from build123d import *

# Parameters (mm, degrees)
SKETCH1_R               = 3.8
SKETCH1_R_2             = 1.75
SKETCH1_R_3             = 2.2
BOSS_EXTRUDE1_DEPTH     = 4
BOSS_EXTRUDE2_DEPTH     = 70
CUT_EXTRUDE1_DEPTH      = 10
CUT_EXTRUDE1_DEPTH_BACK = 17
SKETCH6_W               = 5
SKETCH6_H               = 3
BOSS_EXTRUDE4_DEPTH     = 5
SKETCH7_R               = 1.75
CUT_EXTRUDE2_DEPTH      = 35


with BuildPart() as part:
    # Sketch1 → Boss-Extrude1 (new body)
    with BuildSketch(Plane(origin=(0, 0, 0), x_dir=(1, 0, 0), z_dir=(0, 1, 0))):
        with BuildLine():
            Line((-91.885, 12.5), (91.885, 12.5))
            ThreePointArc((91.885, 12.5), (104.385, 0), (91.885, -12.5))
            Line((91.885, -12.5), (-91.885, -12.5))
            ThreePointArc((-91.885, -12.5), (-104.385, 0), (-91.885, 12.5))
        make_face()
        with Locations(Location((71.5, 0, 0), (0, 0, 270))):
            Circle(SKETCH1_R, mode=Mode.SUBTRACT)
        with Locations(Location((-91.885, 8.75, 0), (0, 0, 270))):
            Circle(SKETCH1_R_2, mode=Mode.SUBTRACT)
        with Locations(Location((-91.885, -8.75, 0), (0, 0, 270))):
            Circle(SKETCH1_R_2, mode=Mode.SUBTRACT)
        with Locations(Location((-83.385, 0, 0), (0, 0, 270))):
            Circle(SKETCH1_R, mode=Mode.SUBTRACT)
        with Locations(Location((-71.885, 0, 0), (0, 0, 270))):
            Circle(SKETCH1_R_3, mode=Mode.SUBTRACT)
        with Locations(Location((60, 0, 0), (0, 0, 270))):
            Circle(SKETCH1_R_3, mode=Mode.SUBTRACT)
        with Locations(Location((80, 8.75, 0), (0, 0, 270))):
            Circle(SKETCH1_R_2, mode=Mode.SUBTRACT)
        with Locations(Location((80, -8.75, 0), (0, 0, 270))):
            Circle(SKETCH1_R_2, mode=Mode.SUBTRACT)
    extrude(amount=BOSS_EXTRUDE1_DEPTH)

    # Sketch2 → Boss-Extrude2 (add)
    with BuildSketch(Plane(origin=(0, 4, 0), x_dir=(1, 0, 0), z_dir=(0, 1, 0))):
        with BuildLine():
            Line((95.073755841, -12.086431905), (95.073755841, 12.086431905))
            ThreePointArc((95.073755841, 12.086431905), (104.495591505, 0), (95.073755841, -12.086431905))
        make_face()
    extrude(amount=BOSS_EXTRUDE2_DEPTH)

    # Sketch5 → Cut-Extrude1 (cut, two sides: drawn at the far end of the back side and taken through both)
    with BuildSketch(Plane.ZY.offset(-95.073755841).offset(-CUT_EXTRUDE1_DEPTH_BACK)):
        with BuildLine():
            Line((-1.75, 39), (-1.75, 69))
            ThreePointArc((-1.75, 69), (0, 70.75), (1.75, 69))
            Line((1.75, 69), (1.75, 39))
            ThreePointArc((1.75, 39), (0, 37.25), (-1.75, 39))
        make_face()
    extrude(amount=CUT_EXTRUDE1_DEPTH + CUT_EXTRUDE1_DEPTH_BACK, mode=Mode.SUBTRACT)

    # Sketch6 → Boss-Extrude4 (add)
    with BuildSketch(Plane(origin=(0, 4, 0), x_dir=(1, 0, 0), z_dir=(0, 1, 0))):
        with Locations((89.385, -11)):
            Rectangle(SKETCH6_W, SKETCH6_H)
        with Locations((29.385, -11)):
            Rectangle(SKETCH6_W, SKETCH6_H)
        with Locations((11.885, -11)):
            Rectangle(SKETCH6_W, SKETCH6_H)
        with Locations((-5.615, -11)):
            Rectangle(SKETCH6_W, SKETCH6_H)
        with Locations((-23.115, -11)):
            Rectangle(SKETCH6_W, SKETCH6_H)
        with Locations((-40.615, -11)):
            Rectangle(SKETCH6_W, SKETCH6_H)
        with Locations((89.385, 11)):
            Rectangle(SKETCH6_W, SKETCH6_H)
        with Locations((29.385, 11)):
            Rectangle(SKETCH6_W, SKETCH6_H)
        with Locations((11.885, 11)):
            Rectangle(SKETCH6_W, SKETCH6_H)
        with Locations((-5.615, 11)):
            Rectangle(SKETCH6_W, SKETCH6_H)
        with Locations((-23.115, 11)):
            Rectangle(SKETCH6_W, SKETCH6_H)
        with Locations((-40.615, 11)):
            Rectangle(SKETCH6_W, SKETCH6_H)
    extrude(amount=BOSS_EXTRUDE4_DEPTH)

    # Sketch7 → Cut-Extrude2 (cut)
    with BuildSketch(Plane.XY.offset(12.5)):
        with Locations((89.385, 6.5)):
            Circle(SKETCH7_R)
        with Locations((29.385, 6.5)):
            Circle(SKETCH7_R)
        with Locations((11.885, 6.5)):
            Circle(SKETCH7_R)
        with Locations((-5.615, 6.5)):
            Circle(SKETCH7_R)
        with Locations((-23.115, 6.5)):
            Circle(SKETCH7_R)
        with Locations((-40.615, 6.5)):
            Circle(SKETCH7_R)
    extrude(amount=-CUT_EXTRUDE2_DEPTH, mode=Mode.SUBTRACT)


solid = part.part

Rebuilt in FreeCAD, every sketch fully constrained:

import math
import FreeCAD as App
import Part
import Sketcher
Q = App.Units.Quantity


def add_polygon(sketch, points):
    """Adds a closed chain of lines whose ends are joined by coincident constraints."""
    first, n = sketch.GeometryCount, len(points)
    for a, b in zip(points, points[1:] + points[:1]):
        sketch.addGeometry(Part.LineSegment(App.Vector(*a, 0), App.Vector(*b, 0)), False)
    for i in range(n):
        sketch.addConstraint(Sketcher.Constraint("Coincident", first + i, 2, first + (i + 1) % n, 1))

doc = App.newDocument("Part")
body = doc.addObject("PartDesign::Body", "Body")

sketch1 = doc.addObject("Sketcher::SketchObject", "Sketch")
body.addObject(sketch1)
sketch1.AttachmentSupport = (doc.XZ_Plane, [""])
sketch1.MapMode = "FlatFace"
sketch1.addGeometry(Part.LineSegment(App.Vector(91.885, -12.5, 0), App.Vector(-91.885, -12.5, 0)), False)
sketch1.addGeometry(Part.ArcOfCircle(Part.Circle(App.Vector(-91.885, 0, 0), App.Vector(0, 0, 1), 12.5), math.radians(90), math.radians(270)), False)
sketch1.addGeometry(Part.LineSegment(App.Vector(-91.885, 12.5, 0), App.Vector(91.885, 12.5, 0)), False)
sketch1.addGeometry(Part.ArcOfCircle(Part.Circle(App.Vector(91.885, 0, 0), App.Vector(0, 0, 1), 12.5), math.radians(-90), math.radians(90)), False)
sketch1.addGeometry(Part.Circle(App.Vector(80, 8.75, 0), App.Vector(0, 0, 1), 1.75), False)
sketch1.addGeometry(Part.Circle(App.Vector(-91.885, 8.75, 0), App.Vector(0, 0, 1), 1.75), False)
sketch1.addGeometry(Part.Circle(App.Vector(71.5, 0, 0), App.Vector(0, 0, 1), 3.8), False)
sketch1.addGeometry(Part.Circle(App.Vector(60, 0, 0), App.Vector(0, 0, 1), 2.2), False)
sketch1.addGeometry(Part.Circle(App.Vector(80, -8.75, 0), App.Vector(0, 0, 1), 1.75), False)
sketch1.addGeometry(Part.Circle(App.Vector(-71.885, 0, 0), App.Vector(0, 0, 1), 2.2), False)
sketch1.addGeometry(Part.Circle(App.Vector(-83.385, 0, 0), App.Vector(0, 0, 1), 3.8), False)
sketch1.addGeometry(Part.Circle(App.Vector(-91.885, -8.75, 0), App.Vector(0, 0, 1), 1.75), False)
sketch1.addConstraint(Sketcher.Constraint("Tangent", 0, 2, 1, 2))
sketch1.addConstraint(Sketcher.Constraint("Tangent", 1, 1, 2, 1))
sketch1.addConstraint(Sketcher.Constraint("Tangent", 2, 2, 3, 2))
sketch1.addConstraint(Sketcher.Constraint("Tangent", 3, 1, 0, 1))
sketch1.addConstraint(Sketcher.Constraint("Horizontal", 0))
sketch1.addConstraint(Sketcher.Constraint("Horizontal", 2))
sketch1.addConstraint(Sketcher.Constraint("Equal", 4, 5))
sketch1.addConstraint(Sketcher.Constraint("Equal", 5, 8))
sketch1.addConstraint(Sketcher.Constraint("Equal", 7, 9))
sketch1.addConstraint(Sketcher.Constraint("Equal", 6, 10))
sketch1.addConstraint(Sketcher.Constraint("Equal", 8, 11))
sketch1.addConstraint(Sketcher.Constraint("Symmetric", 1, 3, 3, 3, -1, 1))
sketch1.addConstraint(Sketcher.Constraint("Symmetric", 4, 3, 8, 3, -1))
sketch1.addConstraint(Sketcher.Constraint("Symmetric", 5, 3, 11, 3, -1))
sketch1.addConstraint(Sketcher.Constraint("PointOnObject", 6, 3, -1))
sketch1.addConstraint(Sketcher.Constraint("PointOnObject", 7, 3, -1))
sketch1.addConstraint(Sketcher.Constraint("PointOnObject", 9, 3, -1))
sketch1.addConstraint(Sketcher.Constraint("PointOnObject", 10, 3, -1))
sketch1.addConstraint(Sketcher.Constraint("Horizontal", 4, 3, 5, 3))
sketch1.addConstraint(Sketcher.Constraint("Vertical", 1, 3, 5, 3))
sketch1.addConstraint(Sketcher.Constraint("Diameter", 4, Q("3.5 mm")))
sketch1.addConstraint(Sketcher.Constraint("Diameter", 6, Q("7.6 mm")))
sketch1.addConstraint(Sketcher.Constraint("Diameter", 7, Q("4.4 mm")))
sketch1.addConstraint(Sketcher.Constraint("Radius", 1, Q("12.5 mm")))
sketch1.addConstraint(Sketcher.Constraint("DistanceX", -1, 1, 4, 3, Q("80 mm")))
sketch1.addConstraint(Sketcher.Constraint("DistanceX", -1, 1, 7, 3, Q("60 mm")))
sketch1.addConstraint(Sketcher.Constraint("DistanceX", 1, 3, 9, 3, Q("20 mm")))
sketch1.addConstraint(Sketcher.Constraint("DistanceX", 0, 2, 0, 1, Q("183.77 mm")))
sketch1.addConstraint(Sketcher.Constraint("DistanceX", -1, 1, 6, 3, Q("71.5 mm")))
sketch1.addConstraint(Sketcher.Constraint("DistanceY", 8, 3, 4, 3, Q("17.5 mm")))
sketch1.addConstraint(Sketcher.Constraint("DistanceX", 1, 3, 10, 3, Q("8.5 mm")))
pad1 = doc.addObject("PartDesign::Pad", "Pad")
body.addObject(pad1)
pad1.Profile = sketch1
pad1.Length = 4
pad1.Reversed = True

sketch2 = doc.addObject("Sketcher::SketchObject", "Sketch001")
body.addObject(sketch2)
sketch2.AttachmentSupport = (doc.XZ_Plane, [""])
sketch2.MapMode = "FlatFace"
sketch2.AttachmentOffset = App.Placement(App.Vector(0, 0, -4), App.Rotation())
sketch2.addGeometry(Part.LineSegment(App.Vector(95.073756, -12.086432, 0), App.Vector(95.073756, 12.086432, 0)), False)
sketch2.addGeometry(Part.ArcOfCircle(Part.Circle(App.Vector(92.032371, 0, 0), App.Vector(0, 0, 1), 12.46322), math.radians(-75.875555), math.radians(75.875555)), False)
sketch2.addConstraint(Sketcher.Constraint("Coincident", 0, 1, 1, 1))
sketch2.addConstraint(Sketcher.Constraint("Coincident", 1, 2, 0, 2))
sketch2.addConstraint(Sketcher.Constraint("Vertical", 0))
sketch2.addConstraint(Sketcher.Constraint("PointOnObject", 1, 3, -1))
sketch2.addConstraint(Sketcher.Constraint("Radius", 1, Q("12.46322 mm")))
sketch2.addConstraint(Sketcher.Constraint("DistanceY", 0, 1, 0, 2, Q("24.172864 mm")))
sketch2.addConstraint(Sketcher.Constraint("DistanceX", -1, 1, 1, 3, Q("92.032371 mm")))
pad2 = doc.addObject("PartDesign::Pad", "Pad001")
body.addObject(pad2)
pad2.Profile = sketch2
pad2.Length = 70
pad2.Reversed = True

sketch3 = doc.addObject("Sketcher::SketchObject", "Sketch002")
body.addObject(sketch3)
sketch3.AttachmentSupport = (doc.YZ_Plane, [""])
sketch3.MapMode = "FlatFace"
sketch3.AttachmentOffset = App.Placement(App.Vector(0, 0, 95.073756), App.Rotation())
sketch3.addGeometry(Part.LineSegment(App.Vector(69, -1.75, 0), App.Vector(39, -1.75, 0)), False)
sketch3.addGeometry(Part.ArcOfCircle(Part.Circle(App.Vector(39, 0, 0), App.Vector(0, 0, 1), 1.75), math.radians(90), math.radians(270)), False)
sketch3.addGeometry(Part.LineSegment(App.Vector(39, 1.75, 0), App.Vector(69, 1.75, 0)), False)
sketch3.addGeometry(Part.ArcOfCircle(Part.Circle(App.Vector(69, 0, 0), App.Vector(0, 0, 1), 1.75), math.radians(-90), math.radians(90)), False)
sketch3.addConstraint(Sketcher.Constraint("Tangent", 0, 2, 1, 2))
sketch3.addConstraint(Sketcher.Constraint("Tangent", 1, 1, 2, 1))
sketch3.addConstraint(Sketcher.Constraint("Tangent", 2, 2, 3, 2))
sketch3.addConstraint(Sketcher.Constraint("Tangent", 3, 1, 0, 1))
sketch3.addConstraint(Sketcher.Constraint("Horizontal", 0))
sketch3.addConstraint(Sketcher.Constraint("Horizontal", 2))
sketch3.addConstraint(Sketcher.Constraint("PointOnObject", 1, 3, -1))
sketch3.addConstraint(Sketcher.Constraint("DistanceX", 0, 2, 0, 1, Q("30 mm")))
sketch3.addConstraint(Sketcher.Constraint("Radius", 1, Q("1.75 mm")))
sketch3.addConstraint(Sketcher.Constraint("DistanceX", -1, 1, 1, 3, Q("39 mm")))
pocket1 = doc.addObject("PartDesign::Pocket", "Pocket")
body.addObject(pocket1)
pocket1.Profile = sketch3
pocket1.Type = "ThroughAll"
pocket1.Midplane = True

sketch4 = doc.addObject("Sketcher::SketchObject", "Sketch003")
body.addObject(sketch4)
sketch4.AttachmentSupport = (doc.XZ_Plane, [""])
sketch4.MapMode = "FlatFace"
sketch4.AttachmentOffset = App.Placement(App.Vector(0, 0, -4), App.Rotation())
add_polygon(sketch4, [(86.885, 9.5), (86.885, 12.5), (91.885, 12.5), (91.885, 9.5)])
add_polygon(sketch4, [(26.885, 9.5), (26.885, 12.5), (31.885, 12.5), (31.885, 9.5)])
add_polygon(sketch4, [(9.385, 9.5), (9.385, 12.5), (14.385, 12.5), (14.385, 9.5)])
add_polygon(sketch4, [(-8.115, 9.5), (-8.115, 12.5), (-3.115, 12.5), (-3.115, 9.5)])
add_polygon(sketch4, [(-25.615, 9.5), (-25.615, 12.5), (-20.615, 12.5), (-20.615, 9.5)])
add_polygon(sketch4, [(-43.115, 9.5), (-43.115, 12.5), (-38.115, 12.5), (-38.115, 9.5)])
add_polygon(sketch4, [(86.885, -12.5), (86.885, -9.5), (91.885, -9.5), (91.885, -12.5)])
add_polygon(sketch4, [(26.885, -12.5), (26.885, -9.5), (31.885, -9.5), (31.885, -12.5)])
add_polygon(sketch4, [(9.385, -12.5), (9.385, -9.5), (14.385, -9.5), (14.385, -12.5)])
add_polygon(sketch4, [(-8.115, -12.5), (-8.115, -9.5), (-3.115, -9.5), (-3.115, -12.5)])
add_polygon(sketch4, [(-25.615, -12.5), (-25.615, -9.5), (-20.615, -9.5), (-20.615, -12.5)])
add_polygon(sketch4, [(-43.115, -12.5), (-43.115, -9.5), (-38.115, -9.5), (-38.115, -12.5)])
sketch4.addConstraint(Sketcher.Constraint("Vertical", 0))
sketch4.addConstraint(Sketcher.Constraint("Horizontal", 1))
sketch4.addConstraint(Sketcher.Constraint("Vertical", 2))
sketch4.addConstraint(Sketcher.Constraint("Horizontal", 3))
sketch4.addConstraint(Sketcher.Constraint("Vertical", 4))
sketch4.addConstraint(Sketcher.Constraint("Horizontal", 5))
sketch4.addConstraint(Sketcher.Constraint("Vertical", 6))
sketch4.addConstraint(Sketcher.Constraint("Horizontal", 7))
sketch4.addConstraint(Sketcher.Constraint("Vertical", 8))
sketch4.addConstraint(Sketcher.Constraint("Horizontal", 9))
sketch4.addConstraint(Sketcher.Constraint("Vertical", 10))
sketch4.addConstraint(Sketcher.Constraint("Horizontal", 11))
sketch4.addConstraint(Sketcher.Constraint("Vertical", 12))
sketch4.addConstraint(Sketcher.Constraint("Horizontal", 13))
sketch4.addConstraint(Sketcher.Constraint("Vertical", 14))
sketch4.addConstraint(Sketcher.Constraint("Horizontal", 15))
sketch4.addConstraint(Sketcher.Constraint("Vertical", 16))
sketch4.addConstraint(Sketcher.Constraint("Horizontal", 17))
sketch4.addConstraint(Sketcher.Constraint("Vertical", 18))
sketch4.addConstraint(Sketcher.Constraint("Horizontal", 19))
sketch4.addConstraint(Sketcher.Constraint("Vertical", 20))
sketch4.addConstraint(Sketcher.Constraint("Horizontal", 21))
sketch4.addConstraint(Sketcher.Constraint("Vertical", 22))
sketch4.addConstraint(Sketcher.Constraint("Horizontal", 23))
sketch4.addConstraint(Sketcher.Constraint("Vertical", 24))
sketch4.addConstraint(Sketcher.Constraint("Horizontal", 25))
sketch4.addConstraint(Sketcher.Constraint("Vertical", 26))
sketch4.addConstraint(Sketcher.Constraint("Horizontal", 27))
sketch4.addConstraint(Sketcher.Constraint("Vertical", 28))
sketch4.addConstraint(Sketcher.Constraint("Horizontal", 29))
sketch4.addConstraint(Sketcher.Constraint("Vertical", 30))
sketch4.addConstraint(Sketcher.Constraint("Horizontal", 31))
sketch4.addConstraint(Sketcher.Constraint("Vertical", 32))
sketch4.addConstraint(Sketcher.Constraint("Horizontal", 33))
sketch4.addConstraint(Sketcher.Constraint("Vertical", 34))
sketch4.addConstraint(Sketcher.Constraint("Horizontal", 35))
sketch4.addConstraint(Sketcher.Constraint("Vertical", 36))
sketch4.addConstraint(Sketcher.Constraint("Horizontal", 37))
sketch4.addConstraint(Sketcher.Constraint("Vertical", 38))
sketch4.addConstraint(Sketcher.Constraint("Horizontal", 39))
sketch4.addConstraint(Sketcher.Constraint("Vertical", 40))
sketch4.addConstraint(Sketcher.Constraint("Horizontal", 41))
sketch4.addConstraint(Sketcher.Constraint("Vertical", 42))
sketch4.addConstraint(Sketcher.Constraint("Horizontal", 43))
sketch4.addConstraint(Sketcher.Constraint("Vertical", 44))
sketch4.addConstraint(Sketcher.Constraint("Horizontal", 45))
sketch4.addConstraint(Sketcher.Constraint("Vertical", 46))
sketch4.addConstraint(Sketcher.Constraint("Horizontal", 47))
sketch4.addConstraint(Sketcher.Constraint("Symmetric", 3, 2, 24, 2, -1))
sketch4.addConstraint(Sketcher.Constraint("Symmetric", 1, 2, 26, 2, -1))
sketch4.addConstraint(Sketcher.Constraint("Symmetric", 7, 2, 28, 2, -1))
sketch4.addConstraint(Sketcher.Constraint("Symmetric", 5, 2, 30, 2, -1))
sketch4.addConstraint(Sketcher.Constraint("Symmetric", 11, 2, 32, 2, -1))
sketch4.addConstraint(Sketcher.Constraint("Symmetric", 9, 2, 34, 2, -1))
sketch4.addConstraint(Sketcher.Constraint("Symmetric", 15, 2, 36, 2, -1))
sketch4.addConstraint(Sketcher.Constraint("Symmetric", 13, 2, 38, 2, -1))
sketch4.addConstraint(Sketcher.Constraint("Symmetric", 19, 2, 40, 2, -1))
sketch4.addConstraint(Sketcher.Constraint("Symmetric", 17, 2, 42, 2, -1))
sketch4.addConstraint(Sketcher.Constraint("Symmetric", 23, 2, 44, 2, -1))
sketch4.addConstraint(Sketcher.Constraint("Symmetric", 21, 2, 46, 2, -1))
sketch4.addConstraint(Sketcher.Constraint("Horizontal", 1, 2, 4, 2))
sketch4.addConstraint(Sketcher.Constraint("Horizontal", 3, 2, 6, 2))
sketch4.addConstraint(Sketcher.Constraint("Horizontal", 5, 2, 8, 2))
sketch4.addConstraint(Sketcher.Constraint("Horizontal", 7, 2, 10, 2))
sketch4.addConstraint(Sketcher.Constraint("Horizontal", 9, 2, 12, 2))
sketch4.addConstraint(Sketcher.Constraint("Horizontal", 11, 2, 14, 2))
sketch4.addConstraint(Sketcher.Constraint("Horizontal", 13, 2, 16, 2))
sketch4.addConstraint(Sketcher.Constraint("Horizontal", 15, 2, 18, 2))
sketch4.addConstraint(Sketcher.Constraint("Horizontal", 17, 2, 20, 2))
sketch4.addConstraint(Sketcher.Constraint("Horizontal", 19, 2, 22, 2))
sketch4.addConstraint(Sketcher.Constraint("Equal", 3, 5))
sketch4.addConstraint(Sketcher.Constraint("Equal", 7, 9))
sketch4.addConstraint(Sketcher.Constraint("Equal", 11, 13))
sketch4.addConstraint(Sketcher.Constraint("Equal", 15, 17))
sketch4.addConstraint(Sketcher.Constraint("Equal", 19, 21))
sketch4.addConstraint(Sketcher.Constraint("DistanceX", 1, 1, 1, 2, Q("5 mm")))
sketch4.addConstraint(Sketcher.Constraint("DistanceY", 0, 1, 0, 2, Q("3 mm")))
sketch4.addConstraint(Sketcher.Constraint("DistanceX", 4, 2, 0, 2, Q("60 mm")))
sketch4.addConstraint(Sketcher.Constraint("DistanceX", 12, 2, 4, 2, Q("35 mm")))
sketch4.addConstraint(Sketcher.Constraint("DistanceX", 16, 2, 8, 2, Q("35 mm")))
sketch4.addConstraint(Sketcher.Constraint("DistanceX", 20, 2, 12, 2, Q("35 mm")))
sketch4.addConstraint(Sketcher.Constraint("DistanceY", 24, 2, 3, 2, Q("19 mm")))
sketch4.addConstraint(Sketcher.Constraint("DistanceX", 8, 2, 4, 2, Q("17.5 mm")))
sketch4.addConstraint(Sketcher.Constraint("DistanceX", -1, 1, 0, 2, Q("86.885 mm")))
pad3 = doc.addObject("PartDesign::Pad", "Pad002")
body.addObject(pad3)
pad3.Profile = sketch4
pad3.Length = 5
pad3.Reversed = True

sketch5 = doc.addObject("Sketcher::SketchObject", "Sketch004")
body.addObject(sketch5)
sketch5.AttachmentSupport = (doc.XY_Plane, [""])
sketch5.MapMode = "FlatFace"
sketch5.AttachmentOffset = App.Placement(App.Vector(0, 0, 12.5), App.Rotation())
sketch5.addGeometry(Part.Circle(App.Vector(89.385, 6.5, 0), App.Vector(0, 0, 1), 1.75), False)
sketch5.addGeometry(Part.Circle(App.Vector(29.385, 6.5, 0), App.Vector(0, 0, 1), 1.75), False)
sketch5.addGeometry(Part.Circle(App.Vector(11.885, 6.5, 0), App.Vector(0, 0, 1), 1.75), False)
sketch5.addGeometry(Part.Circle(App.Vector(-5.615, 6.5, 0), App.Vector(0, 0, 1), 1.75), False)
sketch5.addGeometry(Part.Circle(App.Vector(-23.115, 6.5, 0), App.Vector(0, 0, 1), 1.75), False)
sketch5.addGeometry(Part.Circle(App.Vector(-40.615, 6.5, 0), App.Vector(0, 0, 1), 1.75), False)
sketch5.addConstraint(Sketcher.Constraint("Equal", 0, 1))
sketch5.addConstraint(Sketcher.Constraint("Equal", 1, 2))
sketch5.addConstraint(Sketcher.Constraint("Equal", 2, 3))
sketch5.addConstraint(Sketcher.Constraint("Equal", 3, 4))
sketch5.addConstraint(Sketcher.Constraint("Equal", 4, 5))
sketch5.addConstraint(Sketcher.Constraint("Horizontal", 0, 3, 1, 3))
sketch5.addConstraint(Sketcher.Constraint("Horizontal", 1, 3, 2, 3))
sketch5.addConstraint(Sketcher.Constraint("Horizontal", 2, 3, 3, 3))
sketch5.addConstraint(Sketcher.Constraint("Horizontal", 3, 3, 4, 3))
sketch5.addConstraint(Sketcher.Constraint("Horizontal", 4, 3, 5, 3))
sketch5.addConstraint(Sketcher.Constraint("Diameter", 0, Q("3.5 mm")))
sketch5.addConstraint(Sketcher.Constraint("DistanceX", 1, 3, 0, 3, Q("60 mm")))
sketch5.addConstraint(Sketcher.Constraint("DistanceX", 3, 3, 1, 3, Q("35 mm")))
sketch5.addConstraint(Sketcher.Constraint("DistanceX", 4, 3, 2, 3, Q("35 mm")))
sketch5.addConstraint(Sketcher.Constraint("DistanceX", 5, 3, 3, 3, Q("35 mm")))
sketch5.addConstraint(Sketcher.Constraint("DistanceY", -1, 1, 0, 3, Q("6.5 mm")))
sketch5.addConstraint(Sketcher.Constraint("DistanceX", 2, 3, 1, 3, Q("17.5 mm")))
sketch5.addConstraint(Sketcher.Constraint("DistanceX", -1, 1, 0, 3, Q("89.385 mm")))
pocket2 = doc.addObject("PartDesign::Pocket", "Pocket001")
body.addObject(pocket2)
pocket2.Profile = sketch5
pocket2.Length = 35

doc.recompute()
